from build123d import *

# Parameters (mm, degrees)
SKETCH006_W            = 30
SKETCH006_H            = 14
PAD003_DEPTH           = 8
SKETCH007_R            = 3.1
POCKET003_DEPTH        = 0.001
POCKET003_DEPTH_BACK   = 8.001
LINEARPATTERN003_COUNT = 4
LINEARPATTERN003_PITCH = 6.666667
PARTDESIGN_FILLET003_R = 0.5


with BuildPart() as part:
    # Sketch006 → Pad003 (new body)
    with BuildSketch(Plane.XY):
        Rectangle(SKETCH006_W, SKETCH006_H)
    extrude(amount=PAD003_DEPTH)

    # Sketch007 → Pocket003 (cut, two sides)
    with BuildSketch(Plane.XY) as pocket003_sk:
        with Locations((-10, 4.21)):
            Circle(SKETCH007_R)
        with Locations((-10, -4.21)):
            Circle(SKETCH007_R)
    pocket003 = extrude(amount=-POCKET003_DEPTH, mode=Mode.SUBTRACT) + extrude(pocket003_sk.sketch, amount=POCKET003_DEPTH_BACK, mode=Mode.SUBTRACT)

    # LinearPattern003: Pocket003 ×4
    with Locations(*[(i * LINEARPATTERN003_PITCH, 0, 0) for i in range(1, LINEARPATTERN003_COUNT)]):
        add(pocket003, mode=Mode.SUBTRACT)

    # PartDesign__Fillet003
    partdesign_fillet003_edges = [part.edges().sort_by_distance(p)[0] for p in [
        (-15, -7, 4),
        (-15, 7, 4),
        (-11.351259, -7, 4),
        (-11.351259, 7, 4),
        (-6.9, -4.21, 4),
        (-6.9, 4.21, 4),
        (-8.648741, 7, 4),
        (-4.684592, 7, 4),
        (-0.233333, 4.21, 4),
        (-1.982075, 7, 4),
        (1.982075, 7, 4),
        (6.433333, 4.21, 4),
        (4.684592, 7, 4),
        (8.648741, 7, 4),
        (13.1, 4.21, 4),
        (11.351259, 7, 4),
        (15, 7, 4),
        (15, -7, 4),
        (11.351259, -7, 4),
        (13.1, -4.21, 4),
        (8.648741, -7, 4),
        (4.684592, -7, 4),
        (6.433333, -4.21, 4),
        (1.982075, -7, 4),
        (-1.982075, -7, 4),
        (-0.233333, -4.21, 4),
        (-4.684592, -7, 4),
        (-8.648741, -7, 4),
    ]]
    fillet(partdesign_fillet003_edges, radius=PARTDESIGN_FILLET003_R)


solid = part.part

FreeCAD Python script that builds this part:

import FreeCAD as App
import Part
import Sketcher


def edges_at(feature, points):
    """Names of the edges that pass closest to the given points."""
    edges = feature.Shape.Edges
    near = lambda p: min(range(len(edges)), key=lambda i: edges[i].distToShape(Part.Vertex(*p))[0])
    return sorted({f"Edge{near(p) + 1}" for p in points})

doc = App.newDocument("Part")
params = doc.addObject("Spreadsheet::Sheet", "Params")
for row, (alias, value) in enumerate([
    ("sketch1_width", "30 mm"),
    ("sketch1_height", "14 mm"),
    ("pad1_length", "8 mm"),
    ("sketch2_diameter", "6.2 mm"),
    ("linearpattern_pitch", "6.666667 mm"),
    ("fillet_radius", "0.5 mm"),
], start=1):
    params.set(f"A{row}", alias)
    params.set(f"B{row}", "=" + value)
    params.setAlias(f"B{row}", alias)

body = doc.addObject("PartDesign::Body", "Body")

sketch1 = body.newObject("Sketcher::SketchObject", "Sketch")
sketch1.AttachmentSupport = (doc.getObject("XY_Plane"), [""])
sketch1.MapMode = "FlatFace"
sketch1.addGeometry([
    Part.LineSegment(App.Vector(-15, 7, 0), App.Vector(-15, -7, 0)),
    Part.LineSegment(App.Vector(-15, -7, 0), App.Vector(15, -7, 0)),
    Part.LineSegment(App.Vector(15, -7, 0), App.Vector(15, 7, 0)),
    Part.LineSegment(App.Vector(15, 7, 0), App.Vector(-15, 7, 0)),
], False)
sketch1.addConstraint([
    Sketcher.Constraint("Coincident", 0, 2, 1, 1),
    Sketcher.Constraint("Coincident", 1, 2, 2, 1),
    Sketcher.Constraint("Coincident", 2, 2, 3, 1),
    Sketcher.Constraint("Coincident", 3, 2, 0, 1),
    Sketcher.Constraint("Vertical", 0),
    Sketcher.Constraint("Horizontal", 1),
    Sketcher.Constraint("Vertical", 2),
    Sketcher.Constraint("Horizontal", 3),
    Sketcher.Constraint("Symmetric", 0, 2, 2, 2, -1, 1),
    Sketcher.Constraint("DistanceX", 1, 1, 1, 2, 30.0),
    Sketcher.Constraint("DistanceY", 0, 2, 0, 1, 14.0),
])
sketch1.setExpression("Constraints[9]", "Params.sketch1_width")
sketch1.setExpression("Constraints[10]", "Params.sketch1_height")
pad1 = body.newObject("PartDesign::Pad", "Pad")
pad1.Profile = sketch1
pad1.setExpression("Length", "Params.pad1_length")

sketch2 = body.newObject("Sketcher::SketchObject", "Sketch001")
sketch2.AttachmentSupport = (doc.getObject("XY_Plane"), [""])
sketch2.MapMode = "FlatFace"
sketch2.addGeometry([
    Part.Circle(App.Vector(-10, 4.21, 0), App.Vector(0, 0, 1), 3.1),
    Part.Circle(App.Vector(-10, -4.21, 0), App.Vector(0, 0, 1), 3.1),
], False)
sketch2.addConstraint([
    Sketcher.Constraint("Equal", 0, 1),
    Sketcher.Constraint("Symmetric", 0, 3, 1, 3, -1),
    Sketcher.Constraint("Diameter", 0, 6.2),
    Sketcher.Constraint("DistanceX", 0, 3, -1, 1, 10.0),
    Sketcher.Constraint("DistanceY", -1, 1, 0, 3, 4.21),
])
sketch2.setExpression("Constraints[2]", "Params.sketch2_diameter")
pocket1 = body.newObject("PartDesign::Pocket", "Pocket")
pocket1.Profile = sketch2
pocket1.Type = "ThroughAll"
pocket1.Midplane = True
doc.recompute()

linearpattern = body.newObject("PartDesign::LinearPattern", "LinearPattern")
linearpattern.Originals = [pocket1]
linearpattern.Direction = (doc.getObject("X_Axis"), [""])
linearpattern.Mode = "offset"
linearpattern.setExpression("Offset", "Params.linearpattern_pitch")
linearpattern.Occurrences = 4
body.Tip = linearpattern
doc.recompute()

fillet = body.newObject("PartDesign::Fillet", "Fillet")
fillet.Base = (linearpattern, edges_at(linearpattern, [
    (-15, -7, 4),
    (-15, 7, 4),
    (-11.351, -7, 4),
    (-11.351, 7, 4),
    (-8.649, -7, 4),
    (-8.649, 7, 4),
    (-8.649, 7, 4),
    (-4.685, 7, 4),
    (-1.982, 7, 4),
    (-1.982, 7, 4),
    (1.982, 7, 4),
    (4.685, 7, 4),
    (4.685, 7, 4),
    (8.649, 7, 4),
    (11.351, 7, 4),
    (11.351, 7, 4),
    (15, 7, 4),
    (15, -7, 4),
    (11.351, -7, 4),
    (11.351, -7, 4),
    (8.649, -7, 4),
    (4.685, -7, 4),
    (4.685, -7, 4),
    (1.982, -7, 4),
    (-1.982, -7, 4),
    (-1.982, -7, 4),
    (-4.685, -7, 4),
    (-8.649, -7, 4),
]))
fillet.setExpression("Radius", "Params.fillet_radius")

doc.recompute()
